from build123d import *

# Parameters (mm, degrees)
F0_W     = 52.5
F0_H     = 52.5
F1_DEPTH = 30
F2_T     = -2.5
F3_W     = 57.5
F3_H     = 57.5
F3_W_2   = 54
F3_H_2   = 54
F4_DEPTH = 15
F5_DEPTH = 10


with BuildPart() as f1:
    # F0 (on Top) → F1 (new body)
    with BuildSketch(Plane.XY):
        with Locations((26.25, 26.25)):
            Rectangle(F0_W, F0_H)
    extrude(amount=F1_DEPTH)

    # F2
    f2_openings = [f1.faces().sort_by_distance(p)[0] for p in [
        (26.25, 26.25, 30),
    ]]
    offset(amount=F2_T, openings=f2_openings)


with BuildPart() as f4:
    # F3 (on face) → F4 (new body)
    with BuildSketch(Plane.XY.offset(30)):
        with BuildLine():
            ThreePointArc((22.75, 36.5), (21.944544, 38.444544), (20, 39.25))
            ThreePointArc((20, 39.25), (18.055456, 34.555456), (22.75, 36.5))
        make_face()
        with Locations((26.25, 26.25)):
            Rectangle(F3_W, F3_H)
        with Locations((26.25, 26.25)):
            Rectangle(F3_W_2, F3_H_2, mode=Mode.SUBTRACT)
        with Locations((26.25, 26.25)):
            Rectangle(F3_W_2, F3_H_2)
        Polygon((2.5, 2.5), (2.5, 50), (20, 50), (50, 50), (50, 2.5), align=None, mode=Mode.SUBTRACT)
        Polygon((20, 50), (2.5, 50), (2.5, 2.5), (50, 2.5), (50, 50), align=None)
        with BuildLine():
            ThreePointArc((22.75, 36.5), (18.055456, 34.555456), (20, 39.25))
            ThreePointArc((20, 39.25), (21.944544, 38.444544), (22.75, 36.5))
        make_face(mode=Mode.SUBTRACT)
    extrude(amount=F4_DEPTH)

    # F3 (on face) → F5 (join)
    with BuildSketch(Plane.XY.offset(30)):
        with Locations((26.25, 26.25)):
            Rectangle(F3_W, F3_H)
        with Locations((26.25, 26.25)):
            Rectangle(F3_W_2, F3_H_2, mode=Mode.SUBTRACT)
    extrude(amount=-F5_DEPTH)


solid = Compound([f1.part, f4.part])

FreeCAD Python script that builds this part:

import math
import FreeCAD as App
import Part
import Sketcher

V = App.Vector
Q = App.Units.Quantity


def faces_at(feature, points):
    """Names of the faces that lie closest to the given points."""
    faces = feature.Shape.Faces
    near = lambda p: min(range(len(faces)), key=lambda i: faces[i].distToShape(Part.Vertex(*p))[0])
    return sorted({f"Face{near(p) + 1}" for p in points})


def add_polygon(sketch, points):
    """Adds a closed chain of lines whose ends are joined by coincident constraints."""
    first, n = sketch.GeometryCount, len(points)
    for a, b in zip(points, points[1:] + points[:1]):
        sketch.addGeometry(Part.LineSegment(App.Vector(*a, 0), App.Vector(*b, 0)), False)
    for i in range(n):
        sketch.addConstraint(Sketcher.Constraint("Coincident", first + i, 2, first + (i + 1) % n, 1))

doc = App.newDocument("Part")
params = doc.addObject("Spreadsheet::Sheet", "Params")
for row, (alias, value) in enumerate([
    ("sketch1_width", "52.5 mm"),
    ("pad1_length", "30 mm"),
    ("thickness_wall", "2.5 mm"),
    ("sketch2_radius", "2.749999 mm"),
    ("sketch2_width", "57.5 mm"),
    ("pad2_length", "15 mm"),
    ("sketch3_width", "54 mm"),
    ("sketch3_width2", "57.5 mm"),
    ("pad3_length", "10 mm"),
], start=1):
    params.set(f"A{row}", alias)
    params.set(f"B{row}", "=" + value)
    params.setAlias(f"B{row}", alias)

body = doc.addObject("PartDesign::Body", "Body")

# Sketch on XY plane
sketch1 = doc.addObject("Sketcher::SketchObject", "Sketch")
body.addObject(sketch1)
sketch1.AttachmentSupport = (doc.XY_Plane, [""])
sketch1.MapMode = "FlatFace"
add_polygon(sketch1, [(0, 52), (0, 0), (52, 0), (52, 52)])  # lines 0-3
sketch1.addConstraint([
    Sketcher.Constraint("Vertical", 0),
    Sketcher.Constraint("Horizontal", 1),
    Sketcher.Constraint("Vertical", 2),
    Sketcher.Constraint("Horizontal", 3),
    Sketcher.Constraint("Coincident", 0, 2, -1, 1),
    Sketcher.Constraint("Equal", 3, 0),
    Sketcher.Constraint("DistanceX", 1, 1, 1, 2, Q("52.5 mm")),
])
sketch1.setExpression("Constraints[10]", "Params.sketch1_width")
pad1 = doc.addObject("PartDesign::Pad", "Pad")
body.addObject(pad1)
pad1.Profile = sketch1
pad1.setExpression("Length", "Params.pad1_length")
doc.recompute()

thickness = doc.addObject("PartDesign::Thickness", "Thickness")
body.addObject(thickness)
thickness.Base = (pad1, faces_at(pad1, [(26.25, 26.25, 30)]))
thickness.setExpression("Value", "Params.thickness_wall")
thickness.Reversed = True
thickness.Join = "Arc"
body2 = doc.addObject("PartDesign::Body", "Body001")

# Sketch on XY plane
sketch2 = doc.addObject("Sketcher::SketchObject", "Sketch001")
body2.addObject(sketch2)
sketch2.AttachmentSupport = (doc.getObject("XY_Plane001"), [""])
sketch2.MapMode = "FlatFace"
sketch2.AttachmentOffset = App.Placement(V(0, 0, 30), App.Rotation())
add_polygon(sketch2, [(-2.5, 55), (-2.5, -2.5), (55, -2.5), (55, 55)])  # lines 0-3
sketch2.addGeometry(Part.ArcOfCircle(Part.Circle(V(20, 36.5, 0), V(0, 0, 1), 2.7), math.radians(0), math.radians(90)), False)  # 4
sketch2.addGeometry(Part.ArcOfCircle(Part.Circle(V(20, 36.5, 0), V(0, 0, 1), 2.8), math.radians(90), math.radians(360)), False)  # 5
sketch2.addConstraint([
    Sketcher.Constraint("Tangent", 4, 1, 5, 2),
    Sketcher.Constraint("Coincident", 5, 1, 4, 2),
    Sketcher.Constraint("Vertical", 0),
    Sketcher.Constraint("Horizontal", 1),
    Sketcher.Constraint("Vertical", 2),
    Sketcher.Constraint("Horizontal", 3),
    Sketcher.Constraint("Horizontal", 5, 3, 4, 1),
    Sketcher.Constraint("Vertical", 4, 3, 5, 1),
    Sketcher.Constraint("Equal", 3, 0),
    Sketcher.Constraint("Radius", 4, Q("2.749999 mm")),
    Sketcher.Constraint("DistanceX", 1, 1, 1, 2, Q("57.5 mm")),
    Sketcher.Constraint("DistanceX", -1, 1, 4, 3, Q("20.000001 mm")),
    Sketcher.Constraint("DistanceX", -1, 1, 1, 2, Q("55 mm")),
    Sketcher.Constraint("DistanceY", -1, 1, 2, 2, Q("55 mm")),
    Sketcher.Constraint("DistanceY", 0, 2, 5, 3, Q("39 mm")),
])
sketch2.setExpression("Constraints[13]", "Params.sketch2_radius")
sketch2.setExpression("Constraints[14]", "Params.sketch2_width")
pad2 = doc.addObject("PartDesign::Pad", "Pad001")
body2.addObject(pad2)
pad2.Profile = sketch2
pad2.setExpression("Length", "Params.pad2_length")

# Sketch on XY plane
sketch3 = doc.addObject("Sketcher::SketchObject", "Sketch002")
body2.addObject(sketch3)
sketch3.AttachmentSupport = (doc.getObject("XY_Plane001"), [""])
sketch3.MapMode = "FlatFace"
sketch3.AttachmentOffset = App.Placement(V(0, 0, 30), App.Rotation())
add_polygon(sketch3, [(-2, 55), (-2, -2), (55, -2), (55, 55)])  # lines 0-3
add_polygon(sketch3, [(53, -1), (-1, -1), (-1, 53), (53, 53)])  # lines 4-7
sketch3.addConstraint([
    Sketcher.Constraint("Vertical", 0),
    Sketcher.Constraint("Horizontal", 1),
    Sketcher.Constraint("Vertical", 2),
    Sketcher.Constraint("Horizontal", 3),
    Sketcher.Constraint("Horizontal", 4),
    Sketcher.Constraint("Vertical", 5),
    Sketcher.Constraint("Horizontal", 6),
    Sketcher.Constraint("Vertical", 7),
    Sketcher.Constraint("Equal", 3, 0),
    Sketcher.Constraint("Equal", 6, 5),
    Sketcher.Constraint("DistanceX", 4, 2, 4, 1, Q("54 mm")),
    Sketcher.Constraint("DistanceX", 1, 1, 1, 2, Q("57.5 mm")),
    Sketcher.Constraint("DistanceX", -1, 1, 1, 2, Q("55 mm")),
    Sketcher.Constraint("DistanceY", -1, 1, 2, 2, Q("55 mm")),
    Sketcher.Constraint("DistanceX", 4, 2, -1, 1, Q("0.75 mm")),
    Sketcher.Constraint("DistanceY", 4, 2, -1, 1, Q("0.75 mm")),
])
sketch3.setExpression("Constraints[18]", "Params.sketch3_width")
sketch3.setExpression("Constraints[19]", "Params.sketch3_width2")
pad3 = doc.addObject("PartDesign::Pad", "Pad002")
body2.addObject(pad3)
pad3.Profile = sketch3
pad3.setExpression("Length", "Params.pad3_length")
pad3.Reversed = True

doc.recompute()
